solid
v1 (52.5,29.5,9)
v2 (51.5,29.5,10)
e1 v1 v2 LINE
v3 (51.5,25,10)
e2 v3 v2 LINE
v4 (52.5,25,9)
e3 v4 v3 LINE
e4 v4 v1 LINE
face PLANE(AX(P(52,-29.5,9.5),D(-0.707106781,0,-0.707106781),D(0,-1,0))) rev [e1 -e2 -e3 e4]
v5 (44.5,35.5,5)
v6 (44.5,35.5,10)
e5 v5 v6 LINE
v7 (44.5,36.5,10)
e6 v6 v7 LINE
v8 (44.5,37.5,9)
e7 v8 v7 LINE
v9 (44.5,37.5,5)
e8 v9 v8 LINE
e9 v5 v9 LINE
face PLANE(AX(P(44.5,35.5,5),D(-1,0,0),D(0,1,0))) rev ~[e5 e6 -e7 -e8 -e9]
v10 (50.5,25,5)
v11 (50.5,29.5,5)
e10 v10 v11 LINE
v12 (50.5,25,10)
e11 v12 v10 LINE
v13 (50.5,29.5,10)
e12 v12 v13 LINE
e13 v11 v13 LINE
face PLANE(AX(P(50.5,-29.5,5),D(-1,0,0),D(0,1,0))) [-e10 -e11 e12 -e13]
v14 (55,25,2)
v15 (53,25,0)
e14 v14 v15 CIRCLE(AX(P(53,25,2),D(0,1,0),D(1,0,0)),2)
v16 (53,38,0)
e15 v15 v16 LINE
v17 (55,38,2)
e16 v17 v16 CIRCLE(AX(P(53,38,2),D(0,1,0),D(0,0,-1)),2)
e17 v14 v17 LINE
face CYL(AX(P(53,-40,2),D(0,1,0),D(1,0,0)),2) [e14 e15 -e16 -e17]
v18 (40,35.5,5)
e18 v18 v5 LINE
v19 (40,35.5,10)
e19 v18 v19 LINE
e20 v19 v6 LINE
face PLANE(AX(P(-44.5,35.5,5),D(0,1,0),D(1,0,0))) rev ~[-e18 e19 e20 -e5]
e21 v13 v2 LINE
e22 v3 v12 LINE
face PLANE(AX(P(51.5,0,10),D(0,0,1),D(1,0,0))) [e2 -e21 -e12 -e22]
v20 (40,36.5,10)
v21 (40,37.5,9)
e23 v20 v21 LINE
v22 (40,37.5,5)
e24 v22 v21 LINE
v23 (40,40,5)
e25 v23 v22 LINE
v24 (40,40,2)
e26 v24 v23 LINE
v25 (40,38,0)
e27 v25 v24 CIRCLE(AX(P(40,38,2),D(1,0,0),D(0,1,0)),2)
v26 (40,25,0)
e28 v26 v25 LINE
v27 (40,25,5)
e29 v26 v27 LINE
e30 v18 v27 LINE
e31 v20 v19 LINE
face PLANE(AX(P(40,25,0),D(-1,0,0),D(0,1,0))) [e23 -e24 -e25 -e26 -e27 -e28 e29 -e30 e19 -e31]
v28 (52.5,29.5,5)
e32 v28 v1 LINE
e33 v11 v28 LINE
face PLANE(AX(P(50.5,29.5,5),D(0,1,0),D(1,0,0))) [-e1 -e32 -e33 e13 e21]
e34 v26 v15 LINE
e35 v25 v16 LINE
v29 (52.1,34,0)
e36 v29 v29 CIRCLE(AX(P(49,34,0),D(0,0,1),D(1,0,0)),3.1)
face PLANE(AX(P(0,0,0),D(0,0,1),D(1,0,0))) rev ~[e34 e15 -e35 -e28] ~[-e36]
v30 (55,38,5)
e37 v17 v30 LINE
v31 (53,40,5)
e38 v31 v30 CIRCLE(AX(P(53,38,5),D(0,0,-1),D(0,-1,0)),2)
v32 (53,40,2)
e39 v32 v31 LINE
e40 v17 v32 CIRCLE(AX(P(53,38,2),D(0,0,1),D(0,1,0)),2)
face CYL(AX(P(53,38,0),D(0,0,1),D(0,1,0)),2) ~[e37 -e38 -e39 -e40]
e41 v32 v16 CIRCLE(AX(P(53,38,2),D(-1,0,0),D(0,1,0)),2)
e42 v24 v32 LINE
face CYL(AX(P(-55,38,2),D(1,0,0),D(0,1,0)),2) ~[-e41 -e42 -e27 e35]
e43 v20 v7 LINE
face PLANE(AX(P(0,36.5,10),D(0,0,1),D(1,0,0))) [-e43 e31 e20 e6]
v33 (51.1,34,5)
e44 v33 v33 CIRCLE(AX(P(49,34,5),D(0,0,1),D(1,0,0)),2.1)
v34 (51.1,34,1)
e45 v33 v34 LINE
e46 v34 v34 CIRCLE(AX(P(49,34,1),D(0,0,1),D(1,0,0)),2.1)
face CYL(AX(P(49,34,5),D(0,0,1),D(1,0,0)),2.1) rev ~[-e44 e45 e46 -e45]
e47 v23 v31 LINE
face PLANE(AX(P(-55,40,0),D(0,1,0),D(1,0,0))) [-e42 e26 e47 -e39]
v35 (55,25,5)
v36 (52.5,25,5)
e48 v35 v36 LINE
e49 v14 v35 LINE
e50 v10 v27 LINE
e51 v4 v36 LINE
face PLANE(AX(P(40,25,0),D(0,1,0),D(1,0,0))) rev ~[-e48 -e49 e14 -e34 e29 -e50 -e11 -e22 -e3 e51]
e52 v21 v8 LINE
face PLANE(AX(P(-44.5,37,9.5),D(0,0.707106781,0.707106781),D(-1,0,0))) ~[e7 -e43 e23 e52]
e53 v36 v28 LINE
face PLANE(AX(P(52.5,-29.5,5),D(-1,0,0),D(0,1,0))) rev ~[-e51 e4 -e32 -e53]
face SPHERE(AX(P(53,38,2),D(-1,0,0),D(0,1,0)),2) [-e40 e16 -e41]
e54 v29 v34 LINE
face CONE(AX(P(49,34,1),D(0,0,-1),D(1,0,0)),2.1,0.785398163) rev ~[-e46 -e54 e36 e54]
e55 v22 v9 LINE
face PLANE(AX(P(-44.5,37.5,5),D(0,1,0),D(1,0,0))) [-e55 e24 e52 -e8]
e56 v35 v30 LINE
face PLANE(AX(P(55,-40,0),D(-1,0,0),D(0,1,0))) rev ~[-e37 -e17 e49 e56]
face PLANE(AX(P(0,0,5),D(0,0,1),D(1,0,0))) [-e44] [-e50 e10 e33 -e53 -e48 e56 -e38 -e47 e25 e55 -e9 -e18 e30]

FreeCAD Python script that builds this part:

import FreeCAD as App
import Part
import Sketcher
from FreeCAD import Vector
Q = App.Units.Quantity


def edges_at(feature, points):
    """Names of the edges that pass closest to the given points."""
    edges = feature.Shape.Edges
    near = lambda p: min(range(len(edges)), key=lambda i: edges[i].distToShape(Part.Vertex(*p))[0])
    return sorted({f"Edge{near(p) + 1}" for p in points})

doc = App.newDocument("Part")
body = doc.addObject("PartDesign::Body", "Body")

# Sketch on XY plane
sketch1 = body.newObject("Sketcher::SketchObject", "Sketch")
sketch1.AttachmentSupport = (doc.getObject("XY_Plane"), [""])
sketch1.MapMode = "FlatFace"
sketch1.addGeometry([
    Part.LineSegment(Vector(40, 40, 0), Vector(40, 25, 0)),
    Part.LineSegment(Vector(40, 25, 0), Vector(55, 25, 0)),
    Part.LineSegment(Vector(55, 25, 0), Vector(55, 40, 0)),
    Part.LineSegment(Vector(55, 40, 0), Vector(40, 40, 0)),
], False)
sketch1.addConstraint([
    Sketcher.Constraint("Coincident", 0, 2, 1, 1),
    Sketcher.Constraint("Coincident", 1, 2, 2, 1),
    Sketcher.Constraint("Coincident", 2, 2, 3, 1),
    Sketcher.Constraint("Coincident", 3, 2, 0, 1),
    Sketcher.Constraint("Vertical", 0),
    Sketcher.Constraint("Horizontal", 1),
    Sketcher.Constraint("Vertical", 2),
    Sketcher.Constraint("Horizontal", 3),
    Sketcher.Constraint("Equal", 3, 0),
    Sketcher.Constraint("DistanceX", 1, 1, 1, 2, Q("15 mm")),
    Sketcher.Constraint("DistanceX", -1, 1, 0, 2, Q("40 mm")),
    Sketcher.Constraint("DistanceY", -1, 1, 0, 2, Q("25 mm")),
])
pad1 = body.newObject("PartDesign::Pad", "Pad")
pad1.Profile = sketch1
pad1.Length = 15
body2 = doc.addObject("PartDesign::Body", "Body001")

# Sketch on XY plane
sketch2 = body2.newObject("Sketcher::SketchObject", "Sketch001")
sketch2.AttachmentSupport = (doc.getObject("XY_Plane001"), [""])
sketch2.MapMode = "FlatFace"
sketch2.addGeometry([
    Part.LineSegment(Vector(-55, 40, 0), Vector(-55, -40, 0)),
    Part.LineSegment(Vector(-55, -40, 0), Vector(55, -40, 0)),
    Part.LineSegment(Vector(55, -40, 0), Vector(55, 40, 0)),
    Part.LineSegment(Vector(55, 40, 0), Vector(-55, 40, 0)),
], False)
sketch2.addConstraint([
    Sketcher.Constraint("Coincident", 0, 2, 1, 1),
    Sketcher.Constraint("Coincident", 1, 2, 2, 1),
    Sketcher.Constraint("Coincident", 2, 2, 3, 1),
    Sketcher.Constraint("Coincident", 3, 2, 0, 1),
    Sketcher.Constraint("Vertical", 0),
    Sketcher.Constraint("Horizontal", 1),
    Sketcher.Constraint("Vertical", 2),
    Sketcher.Constraint("Horizontal", 3),
    Sketcher.Constraint("Symmetric", 0, 2, 2, 2, -1, 1),
    Sketcher.Constraint("DistanceX", 1, 1, 1, 2, Q("110 mm")),
    Sketcher.Constraint("DistanceY", 0, 2, 0, 1, Q("80 mm")),
])
pad2 = body2.newObject("PartDesign::Pad", "Pad001")
pad2.Profile = sketch2
pad2.Length = 5

# Sketch on XY plane
sketch3 = body2.newObject("Sketcher::SketchObject", "Sketch002")
sketch3.AttachmentSupport = (doc.getObject("XY_Plane001"), [""])
sketch3.MapMode = "FlatFace"
sketch3.AttachmentOffset = App.Placement(Vector(0, 0, 5), App.Rotation())
sketch3.addGeometry([
    Part.Circle(Vector(49, 34, 0), Vector(0, 0, 1), 2.1),
    Part.Circle(Vector(-49, 34, 0), Vector(0, 0, 1), 2.1),
    Part.Circle(Vector(-49, -34, 0), Vector(0, 0, 1), 2.1),
    Part.Circle(Vector(49, -34, 0), Vector(0, 0, 1), 2.1),
], False)
sketch3.addConstraint([
    Sketcher.Constraint("Equal", 0, 1),
    Sketcher.Constraint("Equal", 1, 2),
    Sketcher.Constraint("Equal", 2, 3),
    Sketcher.Constraint("Symmetric", 0, 3, 2, 3, -1, 1),
    Sketcher.Constraint("Symmetric", 1, 3, 3, 3, -1, 1),
    Sketcher.Constraint("Symmetric", 0, 3, 1, 3, -2),
    Sketcher.Constraint("Diameter", 0, Q("4.2 mm")),
    Sketcher.Constraint("DistanceX", -1, 1, 0, 3, Q("49 mm")),
    Sketcher.Constraint("DistanceY", -1, 1, 0, 3, Q("34 mm")),
])
pocket1 = body2.newObject("PartDesign::Pocket", "Pocket")
pocket1.Profile = sketch3
pocket1.Length = 5
doc.recompute()

chamfer = body2.newObject("PartDesign::Chamfer", "Chamfer")
chamfer.Base = (pocket1, edges_at(pocket1, [
    (-51.1, -34, 0),
    (-51.1, 34, 0),
    (46.9, 34, 0),
    (46.9, -34, 0),
]))
chamfer.Size = 1

# Sketch on XY plane
sketch4 = body2.newObject("Sketcher::SketchObject", "Sketch003")
sketch4.AttachmentSupport = (doc.getObject("XY_Plane001"), [""])
sketch4.MapMode = "FlatFace"
sketch4.AttachmentOffset = App.Placement(Vector(0, 0, 5), App.Rotation())
sketch4.addGeometry([
    Part.LineSegment(Vector(-44.5, 37.5, 0), Vector(-44.5, 35.5, 0)),  # 0
    Part.LineSegment(Vector(-44.5, 35.5, 0), Vector(44.5, 35.5, 0)),  # 1
    Part.LineSegment(Vector(44.5, 35.5, 0), Vector(44.5, 37.5, 0)),  # 2
    Part.LineSegment(Vector(44.5, 37.5, 0), Vector(-44.5, 37.5, 0)),  # 3
    Part.LineSegment(Vector(-44.5, -35.5, 0), Vector(-44.5, -37.5, 0)),  # 4
    Part.LineSegment(Vector(-44.5, -37.5, 0), Vector(44.5, -37.5, 0)),  # 5
    Part.LineSegment(Vector(44.5, -37.5, 0), Vector(44.5, -35.5, 0)),  # 6
    Part.LineSegment(Vector(44.5, -35.5, 0), Vector(-44.5, -35.5, 0)),  # 7
    Part.LineSegment(Vector(50.5, 29.5, 0), Vector(50.5, -29.5, 0)),  # 8
    Part.LineSegment(Vector(50.5, -29.5, 0), Vector(52.5, -29.5, 0)),  # 9
    Part.LineSegment(Vector(52.5, -29.5, 0), Vector(52.5, 29.5, 0)),  # 10
    Part.LineSegment(Vector(52.5, 29.5, 0), Vector(50.5, 29.5, 0)),  # 11
    Part.LineSegment(Vector(-52.5, 29.5, 0), Vector(-52.5, -29.5, 0)),  # 12
    Part.LineSegment(Vector(-52.5, -29.5, 0), Vector(-50.5, -29.5, 0)),  # 13
    Part.LineSegment(Vector(-50.5, -29.5, 0), Vector(-50.5, 29.5, 0)),  # 14
    Part.LineSegment(Vector(-50.5, 29.5, 0), Vector(-52.5, 29.5, 0)),  # 15
], False)
sketch4.addConstraint([
    Sketcher.Constraint("Coincident", 0, 2, 1, 1),
    Sketcher.Constraint("Coincident", 1, 2, 2, 1),
    Sketcher.Constraint("Coincident", 2, 2, 3, 1),
    Sketcher.Constraint("Coincident", 3, 2, 0, 1),
    Sketcher.Constraint("Coincident", 4, 2, 5, 1),
    Sketcher.Constraint("Coincident", 5, 2, 6, 1),
    Sketcher.Constraint("Coincident", 6, 2, 7, 1),
    Sketcher.Constraint("Coincident", 7, 2, 4, 1),
    Sketcher.Constraint("Coincident", 8, 2, 9, 1),
    Sketcher.Constraint("Coincident", 9, 2, 10, 1),
    Sketcher.Constraint("Coincident", 10, 2, 11, 1),
    Sketcher.Constraint("Coincident", 11, 2, 8, 1),
    Sketcher.Constraint("Coincident", 12, 2, 13, 1),
    Sketcher.Constraint("Coincident", 13, 2, 14, 1),
    Sketcher.Constraint("Coincident", 14, 2, 15, 1),
    Sketcher.Constraint("Coincident", 15, 2, 12, 1),
    Sketcher.Constraint("Vertical", 0),
    Sketcher.Constraint("Horizontal", 1),
    Sketcher.Constraint("Vertical", 2),
    Sketcher.Constraint("Horizontal", 3),
    Sketcher.Constraint("Vertical", 4),
    Sketcher.Constraint("Horizontal", 5),
    Sketcher.Constraint("Vertical", 6),
    Sketcher.Constraint("Horizontal", 7),
    Sketcher.Constraint("Vertical", 8),
    Sketcher.Constraint("Horizontal", 9),
    Sketcher.Constraint("Vertical", 10),
    Sketcher.Constraint("Horizontal", 11),
    Sketcher.Constraint("Vertical", 12),
    Sketcher.Constraint("Horizontal", 13),
    Sketcher.Constraint("Vertical", 14),
    Sketcher.Constraint("Horizontal", 15),
    Sketcher.Constraint("Symmetric", 2, 2, 4, 2, -1, 1),
    Sketcher.Constraint("Symmetric", 0, 2, 6, 2, -1, 1),
    Sketcher.Constraint("Symmetric", 10, 2, 12, 2, -1, 1),
    Sketcher.Constraint("Symmetric", 8, 2, 14, 2, -1, 1),
    Sketcher.Constraint("Horizontal", 9, 2, 12, 2),
    Sketcher.Constraint("Vertical", 3, 2, 4, 2),
    Sketcher.Constraint("Equal", 15, 0),
    Sketcher.Constraint("DistanceX", 1, 1, 1, 2, Q("89 mm")),
    Sketcher.Constraint("DistanceX", 9, 1, 9, 2, Q("2 mm")),
    Sketcher.Constraint("DistanceY", 8, 2, 8, 1, Q("59 mm")),
    Sketcher.Constraint("DistanceY", 4, 2, 0, 2, Q("73 mm")),
    Sketcher.Constraint("DistanceX", 6, 2, 8, 2, Q("6 mm")),
])
pad3 = body2.newObject("PartDesign::Pad", "Pad002")
pad3.Profile = sketch4
pad3.Length = 5
doc.recompute()

chamfer2 = body2.newObject("PartDesign::Chamfer", "Chamfer001")
chamfer2.Base = (pad3, edges_at(pad3, [
    (-52.5, 0, 10),
    (0, 37.5, 10),
    (52.5, 0, 10),
    (0, -37.5, 10),
]))
chamfer2.Size = 1
doc.recompute()

fillet = body2.newObject("PartDesign::Fillet", "Fillet")
fillet.Base = (chamfer2, edges_at(chamfer2, [
    (-55, -40, 2.5),
    (-55, 0, 0),
    (-55, 40, 2.5),
    (0, 40, 0),
    (55, 40, 2.5),
    (55, 0, 0),
    (55, -40, 2.5),
    (0, -40, 0),
]))
fillet.Radius = 2
doc.recompute()

boolean = body2.newObject("PartDesign::Boolean", "Boolean")
boolean.Type = "Common"
boolean.addObjects([body])

doc.recompute()
